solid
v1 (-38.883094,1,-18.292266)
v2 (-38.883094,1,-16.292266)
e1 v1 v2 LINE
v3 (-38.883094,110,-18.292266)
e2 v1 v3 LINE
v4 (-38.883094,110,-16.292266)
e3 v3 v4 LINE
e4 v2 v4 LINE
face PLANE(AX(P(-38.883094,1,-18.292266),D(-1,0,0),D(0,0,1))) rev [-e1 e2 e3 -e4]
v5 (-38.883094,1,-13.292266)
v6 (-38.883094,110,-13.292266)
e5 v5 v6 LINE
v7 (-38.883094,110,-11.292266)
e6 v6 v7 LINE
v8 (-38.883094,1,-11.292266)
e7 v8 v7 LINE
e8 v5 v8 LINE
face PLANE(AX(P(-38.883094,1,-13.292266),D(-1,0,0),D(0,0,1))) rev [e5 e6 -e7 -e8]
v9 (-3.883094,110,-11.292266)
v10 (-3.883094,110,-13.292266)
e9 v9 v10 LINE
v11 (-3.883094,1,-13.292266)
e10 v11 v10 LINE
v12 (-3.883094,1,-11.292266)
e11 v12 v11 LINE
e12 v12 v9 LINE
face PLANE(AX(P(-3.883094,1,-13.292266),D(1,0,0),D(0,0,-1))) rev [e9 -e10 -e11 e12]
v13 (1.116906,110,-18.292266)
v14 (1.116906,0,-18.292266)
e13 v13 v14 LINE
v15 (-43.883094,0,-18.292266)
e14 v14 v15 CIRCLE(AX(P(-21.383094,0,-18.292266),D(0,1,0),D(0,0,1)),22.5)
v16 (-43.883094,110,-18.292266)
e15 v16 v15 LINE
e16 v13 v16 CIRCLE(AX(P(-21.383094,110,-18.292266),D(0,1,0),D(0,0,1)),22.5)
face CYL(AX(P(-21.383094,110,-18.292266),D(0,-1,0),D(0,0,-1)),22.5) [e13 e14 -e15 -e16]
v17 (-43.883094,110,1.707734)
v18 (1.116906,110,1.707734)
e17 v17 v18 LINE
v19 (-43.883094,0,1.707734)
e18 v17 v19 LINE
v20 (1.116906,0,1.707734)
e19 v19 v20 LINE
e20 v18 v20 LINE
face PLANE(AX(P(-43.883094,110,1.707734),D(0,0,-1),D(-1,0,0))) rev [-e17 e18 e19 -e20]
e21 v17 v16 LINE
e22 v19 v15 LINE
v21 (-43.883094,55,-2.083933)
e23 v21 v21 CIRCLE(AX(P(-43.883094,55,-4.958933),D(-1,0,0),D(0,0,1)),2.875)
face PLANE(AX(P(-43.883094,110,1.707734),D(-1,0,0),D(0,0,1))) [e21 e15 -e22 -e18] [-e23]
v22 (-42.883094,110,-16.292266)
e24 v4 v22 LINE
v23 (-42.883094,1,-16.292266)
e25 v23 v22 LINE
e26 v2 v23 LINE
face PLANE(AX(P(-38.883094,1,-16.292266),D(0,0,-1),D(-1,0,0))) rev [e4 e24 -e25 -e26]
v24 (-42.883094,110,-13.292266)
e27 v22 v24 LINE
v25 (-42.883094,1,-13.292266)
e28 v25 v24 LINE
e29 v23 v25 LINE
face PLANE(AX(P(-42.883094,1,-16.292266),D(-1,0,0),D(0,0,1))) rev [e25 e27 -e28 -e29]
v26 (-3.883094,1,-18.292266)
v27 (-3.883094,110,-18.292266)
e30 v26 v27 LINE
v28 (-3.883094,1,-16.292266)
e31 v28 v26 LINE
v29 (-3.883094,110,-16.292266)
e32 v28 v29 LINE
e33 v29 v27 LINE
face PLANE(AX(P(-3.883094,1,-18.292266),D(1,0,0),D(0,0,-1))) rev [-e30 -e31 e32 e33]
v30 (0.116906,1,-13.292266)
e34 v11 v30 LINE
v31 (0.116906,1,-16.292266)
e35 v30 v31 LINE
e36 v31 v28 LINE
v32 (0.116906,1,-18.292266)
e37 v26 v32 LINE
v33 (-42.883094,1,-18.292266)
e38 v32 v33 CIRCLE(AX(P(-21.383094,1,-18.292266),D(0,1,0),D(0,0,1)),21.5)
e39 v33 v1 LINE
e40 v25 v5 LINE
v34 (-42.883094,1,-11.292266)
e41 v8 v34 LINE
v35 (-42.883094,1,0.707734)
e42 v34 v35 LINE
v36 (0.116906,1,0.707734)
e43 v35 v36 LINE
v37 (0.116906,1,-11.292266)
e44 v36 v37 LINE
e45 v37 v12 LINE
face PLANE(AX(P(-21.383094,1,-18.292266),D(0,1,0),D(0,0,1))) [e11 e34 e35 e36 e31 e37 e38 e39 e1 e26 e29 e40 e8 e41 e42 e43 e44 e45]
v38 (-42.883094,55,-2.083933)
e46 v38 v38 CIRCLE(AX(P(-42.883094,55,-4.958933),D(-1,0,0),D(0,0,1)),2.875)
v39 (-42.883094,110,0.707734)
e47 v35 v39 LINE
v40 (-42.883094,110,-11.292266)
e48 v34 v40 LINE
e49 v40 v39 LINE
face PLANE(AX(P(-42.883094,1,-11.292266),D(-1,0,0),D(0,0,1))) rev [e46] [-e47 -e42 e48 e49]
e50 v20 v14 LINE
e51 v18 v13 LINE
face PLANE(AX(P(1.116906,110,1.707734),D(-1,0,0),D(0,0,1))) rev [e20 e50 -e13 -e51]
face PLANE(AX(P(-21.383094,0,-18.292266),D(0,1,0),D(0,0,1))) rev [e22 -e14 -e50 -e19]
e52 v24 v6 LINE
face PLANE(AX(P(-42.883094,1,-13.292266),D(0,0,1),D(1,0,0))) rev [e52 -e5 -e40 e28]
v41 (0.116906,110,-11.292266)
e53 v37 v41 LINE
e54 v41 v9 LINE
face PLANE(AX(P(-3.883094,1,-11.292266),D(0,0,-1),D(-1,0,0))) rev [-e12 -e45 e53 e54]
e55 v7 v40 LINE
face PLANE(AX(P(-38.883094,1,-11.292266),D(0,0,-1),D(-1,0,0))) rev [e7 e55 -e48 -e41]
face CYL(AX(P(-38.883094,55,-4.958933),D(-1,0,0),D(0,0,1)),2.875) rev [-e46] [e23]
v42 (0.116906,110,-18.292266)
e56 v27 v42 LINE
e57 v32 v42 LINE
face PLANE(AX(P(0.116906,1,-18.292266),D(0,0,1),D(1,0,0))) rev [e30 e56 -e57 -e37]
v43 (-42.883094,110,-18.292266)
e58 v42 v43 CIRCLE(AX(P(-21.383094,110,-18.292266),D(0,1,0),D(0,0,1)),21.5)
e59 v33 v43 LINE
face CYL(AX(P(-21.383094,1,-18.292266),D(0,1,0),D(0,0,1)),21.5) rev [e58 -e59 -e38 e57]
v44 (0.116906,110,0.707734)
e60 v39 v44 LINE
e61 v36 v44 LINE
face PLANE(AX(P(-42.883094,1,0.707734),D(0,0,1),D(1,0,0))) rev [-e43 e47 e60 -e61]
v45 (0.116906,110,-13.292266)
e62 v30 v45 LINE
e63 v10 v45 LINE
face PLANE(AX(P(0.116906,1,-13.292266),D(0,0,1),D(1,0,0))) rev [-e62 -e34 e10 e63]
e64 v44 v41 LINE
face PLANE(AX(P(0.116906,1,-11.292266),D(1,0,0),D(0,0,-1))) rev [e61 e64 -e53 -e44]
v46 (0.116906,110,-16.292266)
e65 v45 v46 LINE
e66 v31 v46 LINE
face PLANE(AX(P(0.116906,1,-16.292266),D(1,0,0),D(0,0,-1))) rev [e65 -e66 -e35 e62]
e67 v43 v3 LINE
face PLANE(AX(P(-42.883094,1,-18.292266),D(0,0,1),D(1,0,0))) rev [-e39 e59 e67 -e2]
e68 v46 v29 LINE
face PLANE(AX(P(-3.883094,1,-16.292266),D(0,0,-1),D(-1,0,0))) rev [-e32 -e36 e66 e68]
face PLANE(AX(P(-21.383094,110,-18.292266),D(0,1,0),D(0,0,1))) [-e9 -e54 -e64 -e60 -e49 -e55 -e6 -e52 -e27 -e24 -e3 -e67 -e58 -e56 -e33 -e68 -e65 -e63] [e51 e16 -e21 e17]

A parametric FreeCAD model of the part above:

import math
import FreeCAD as App
import Part
import Sketcher
Q = App.Units.Quantity

doc = App.newDocument("Part")
params = doc.addObject("Spreadsheet::Sheet", "Params")
for row, (alias, value) in enumerate([
    ("sketch1_radius", "22.5 mm"),
    ("sketch1_height", "20 mm"),
    ("pad1_length", "110 mm"),
    ("sketch2_radius", "21.5 mm"),
    ("sketch2_width", "4 mm"),
    ("sketch2_height", "3 mm"),
    ("sketch2_height2", "2 mm"),
    ("sketch2_height3", "12 mm"),
    ("pocket1_length", "109 mm"),
    ("sketch3_diameter", "5.75 mm"),
    ("pocket2_length", "5 mm"),
], start=1):
    params.set(f"A{row}", alias)
    params.set(f"B{row}", "=" + value)
    params.setAlias(f"B{row}", alias)

body = doc.addObject("PartDesign::Body", "Body")

sketch1 = doc.addObject("Sketcher::SketchObject", "Sketch")
body.addObject(sketch1)
sketch1.AttachmentSupport = (doc.XZ_Plane, [""])
sketch1.MapMode = "FlatFace"
sketch1.addGeometry([
    Part.LineSegment(App.Vector(-43.883094, 1.707734, 0), App.Vector(1.116906, 1.707734, 0)),
    Part.LineSegment(App.Vector(1.116906, 1.707734, 0), App.Vector(1.116906, -18.292266, 0)),
    Part.ArcOfCircle(Part.Circle(App.Vector(-21.383094, -18.292266, 0), App.Vector(0, 0, 1), 22.5), math.radians(180), math.radians(360)),
    Part.LineSegment(App.Vector(-43.883094, -18.292266, 0), App.Vector(-43.883094, 1.707734, 0)),
], False)
sketch1.addConstraint([
    Sketcher.Constraint("Coincident", 0, 2, 1, 1),
    Sketcher.Constraint("Tangent", 1, 2, 2, 2),
    Sketcher.Constraint("Tangent", 2, 1, 3, 1),
    Sketcher.Constraint("Coincident", 3, 2, 0, 1),
    Sketcher.Constraint("Horizontal", 0),
    Sketcher.Constraint("Vertical", 1),
    Sketcher.Constraint("Vertical", 3),
    Sketcher.Constraint("Radius", 2, Q("22.5 mm")),
    Sketcher.Constraint("DistanceY", 1, 2, 1, 1, Q("20 mm")),
    Sketcher.Constraint("DistanceX", 2, 3, -1, 1, Q("21.383094 mm")),
    Sketcher.Constraint("DistanceY", 2, 3, -1, 1, Q("18.292266 mm")),
])
sketch1.setExpression("Constraints[7]", "Params.sketch1_radius")
sketch1.setExpression("Constraints[8]", "Params.sketch1_height")
pad1 = doc.addObject("PartDesign::Pad", "Pad")
body.addObject(pad1)
pad1.Profile = sketch1
pad1.setExpression("Length", "Params.pad1_length")
pad1.Reversed = True

sketch2 = doc.addObject("Sketcher::SketchObject", "Sketch001")
body.addObject(sketch2)
sketch2.AttachmentSupport = (doc.XZ_Plane, [""])
sketch2.MapMode = "FlatFace"
sketch2.AttachmentOffset = App.Placement(App.Vector(0, 0, -110), App.Rotation())
sketch2.addGeometry([
    Part.LineSegment(App.Vector(-42.883094, -16.292266, 0), App.Vector(-42.883094, -13.292266, 0)),
    Part.LineSegment(App.Vector(-42.883094, -13.292266, 0), App.Vector(-38.883094, -13.292266, 0)),
    Part.LineSegment(App.Vector(-38.883094, -13.292266, 0), App.Vector(-38.883094, -11.292266, 0)),
    Part.LineSegment(App.Vector(-38.883094, -11.292266, 0), App.Vector(-42.883094, -11.292266, 0)),
    Part.LineSegment(App.Vector(-42.883094, -11.292266, 0), App.Vector(-42.883094, 0.707734, 0)),
    Part.LineSegment(App.Vector(-42.883094, 0.707734, 0), App.Vector(0.116906, 0.707734, 0)),
    Part.LineSegment(App.Vector(0.116906, 0.707734, 0), App.Vector(0.116906, -11.292266, 0)),
    Part.LineSegment(App.Vector(0.116906, -11.292266, 0), App.Vector(-3.883094, -11.292266, 0)),
    Part.LineSegment(App.Vector(-3.883094, -11.292266, 0), App.Vector(-3.883094, -13.292266, 0)),
    Part.LineSegment(App.Vector(-3.883094, -13.292266, 0), App.Vector(0.116906, -13.292266, 0)),
    Part.LineSegment(App.Vector(0.116906, -13.292266, 0), App.Vector(0.116906, -16.292266, 0)),
    Part.LineSegment(App.Vector(0.116906, -16.292266, 0), App.Vector(-3.883094, -16.292266, 0)),
    Part.LineSegment(App.Vector(-3.883094, -16.292266, 0), App.Vector(-3.883094, -18.292266, 0)),
    Part.LineSegment(App.Vector(-3.883094, -18.292266, 0), App.Vector(0.116906, -18.292266, 0)),
    Part.ArcOfCircle(Part.Circle(App.Vector(-21.383094, -18.292266, 0), App.Vector(0, 0, 1), 21.5), math.radians(180), math.radians(360)),
    Part.LineSegment(App.Vector(-42.883094, -18.292266, 0), App.Vector(-38.883094, -18.292266, 0)),
    Part.LineSegment(App.Vector(-38.883094, -18.292266, 0), App.Vector(-38.883094, -16.292266, 0)),
    Part.LineSegment(App.Vector(-38.883094, -16.292266, 0), App.Vector(-42.883094, -16.292266, 0)),
], False)
sketch2.addConstraint([
    Sketcher.Constraint("Coincident", 0, 2, 1, 1),
    Sketcher.Constraint("Coincident", 1, 2, 2, 1),
    Sketcher.Constraint("Coincident", 2, 2, 3, 1),
    Sketcher.Constraint("Coincident", 3, 2, 4, 1),
    Sketcher.Constraint("Coincident", 4, 2, 5, 1),
    Sketcher.Constraint("Coincident", 5, 2, 6, 1),
    Sketcher.Constraint("Coincident", 6, 2, 7, 1),
    Sketcher.Constraint("Coincident", 7, 2, 8, 1),
    Sketcher.Constraint("Coincident", 8, 2, 9, 1),
    Sketcher.Constraint("Coincident", 9, 2, 10, 1),
    Sketcher.Constraint("Coincident", 10, 2, 11, 1),
    Sketcher.Constraint("Coincident", 11, 2, 12, 1),
    Sketcher.Constraint("Coincident", 12, 2, 13, 1),
    Sketcher.Constraint("Coincident", 13, 2, 14, 2),
    Sketcher.Constraint("Coincident", 14, 1, 15, 1),
    Sketcher.Constraint("Coincident", 15, 2, 16, 1),
    Sketcher.Constraint("Coincident", 16, 2, 17, 1),
    Sketcher.Constraint("Coincident", 17, 2, 0, 1),
    Sketcher.Constraint("Vertical", 0),
    Sketcher.Constraint("Horizontal", 1),
    Sketcher.Constraint("Vertical", 2),
    Sketcher.Constraint("Horizontal", 3),
    Sketcher.Constraint("Vertical", 4),
    Sketcher.Constraint("Horizontal", 5),
    Sketcher.Constraint("Vertical", 6),
    Sketcher.Constraint("Horizontal", 7),
    Sketcher.Constraint("Vertical", 8),
    Sketcher.Constraint("Horizontal", 9),
    Sketcher.Constraint("Vertical", 10),
    Sketcher.Constraint("Horizontal", 11),
    Sketcher.Constraint("Vertical", 12),
    Sketcher.Constraint("Horizontal", 13),
    Sketcher.Constraint("Horizontal", 15),
    Sketcher.Constraint("Vertical", 16),
    Sketcher.Constraint("Horizontal", 17),
    Sketcher.Constraint("Horizontal", 3, 2, 6, 2),
    Sketcher.Constraint("Horizontal", 1, 2, 8, 2),
    Sketcher.Constraint("Horizontal", 14, 3, 12, 2),
    Sketcher.Constraint("Horizontal", 13, 2, 14, 1),
    Sketcher.Constraint("Horizontal", 11, 2, 16, 2),
    Sketcher.Constraint("Vertical", 0, 2, 3, 2),
    Sketcher.Constraint("Vertical", 6, 2, 9, 2),
    Sketcher.Constraint("Vertical", 8, 2, 11, 2),
    Sketcher.Constraint("Vertical", 10, 2, 13, 2),
    Sketcher.Constraint("Vertical", 4, 2, 14, 1),
    Sketcher.Constraint("Vertical", 2, 2, 15, 2),
    Sketcher.Constraint("Equal", 3, 7),
    Sketcher.Constraint("Equal", 8, 12),
    Sketcher.Constraint("Radius", 14, Q("21.5 mm")),
    Sketcher.Constraint("DistanceX", 1, 1, 1, 2, Q("4 mm")),
    Sketcher.Constraint("DistanceY", 0, 1, 0, 2, Q("3 mm")),
    Sketcher.Constraint("DistanceY", 2, 1, 2, 2, Q("2 mm")),
    Sketcher.Constraint("DistanceY", 4, 1, 4, 2, Q("12 mm")),
    Sketcher.Constraint("DistanceX", 14, 3, -1, 1, Q("21.383094 mm")),
    Sketcher.Constraint("DistanceY", 14, 3, -1, 1, Q("18.292266 mm")),
])
sketch2.setExpression("Constraints[48]", "Params.sketch2_radius")
sketch2.setExpression("Constraints[49]", "Params.sketch2_width")
sketch2.setExpression("Constraints[50]", "Params.sketch2_height")
sketch2.setExpression("Constraints[51]", "Params.sketch2_height2")
sketch2.setExpression("Constraints[52]", "Params.sketch2_height3")
pocket1 = doc.addObject("PartDesign::Pocket", "Pocket")
body.addObject(pocket1)
pocket1.Profile = sketch2
pocket1.setExpression("Length", "Params.pocket1_length")
pocket1.Reversed = True

sketch3 = doc.addObject("Sketcher::SketchObject", "Sketch002")
body.addObject(sketch3)
sketch3.AttachmentSupport = (doc.YZ_Plane, [""])
sketch3.MapMode = "FlatFace"
sketch3.AttachmentOffset = App.Placement(App.Vector(0, 0, -43.883094), App.Rotation())
sketch3.addGeometry(Part.Circle(App.Vector(55, -4.958933, 0), App.Vector(0, 0, 1), 2.875), False)
sketch3.addConstraint([
    Sketcher.Constraint("Diameter", 0, Q("5.75 mm")),
    Sketcher.Constraint("DistanceX", -1, 1, 0, 3, Q("55 mm")),
    Sketcher.Constraint("DistanceY", 0, 3, -1, 1, Q("4.958933 mm")),
])
sketch3.setExpression("Constraints[0]", "Params.sketch3_diameter")
pocket2 = doc.addObject("PartDesign::Pocket", "Pocket001")
body.addObject(pocket2)
pocket2.Profile = sketch3
pocket2.setExpression("Length", "Params.pocket2_length")
pocket2.Reversed = True

doc.recompute()
